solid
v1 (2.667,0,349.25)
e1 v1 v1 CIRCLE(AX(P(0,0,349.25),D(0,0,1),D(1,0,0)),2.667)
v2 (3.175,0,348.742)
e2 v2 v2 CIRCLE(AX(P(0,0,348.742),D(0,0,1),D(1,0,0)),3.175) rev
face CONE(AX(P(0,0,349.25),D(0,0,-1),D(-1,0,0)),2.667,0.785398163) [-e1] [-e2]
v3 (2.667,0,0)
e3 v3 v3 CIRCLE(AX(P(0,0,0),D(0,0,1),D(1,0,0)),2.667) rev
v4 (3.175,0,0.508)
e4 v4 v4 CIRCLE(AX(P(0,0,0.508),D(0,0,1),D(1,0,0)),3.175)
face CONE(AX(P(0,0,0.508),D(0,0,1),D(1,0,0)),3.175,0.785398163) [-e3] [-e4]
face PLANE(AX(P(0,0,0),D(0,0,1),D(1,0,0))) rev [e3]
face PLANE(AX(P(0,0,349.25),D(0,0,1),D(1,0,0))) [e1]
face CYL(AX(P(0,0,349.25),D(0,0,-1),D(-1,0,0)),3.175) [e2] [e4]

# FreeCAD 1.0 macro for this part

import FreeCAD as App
import Part
import Sketcher

V = App.Vector
Q = App.Units.Quantity


def edges_at(feature, points):
    """Names of the edges that pass closest to the given points."""
    edges = feature.Shape.Edges
    near = lambda p: min(range(len(edges)), key=lambda i: edges[i].distToShape(Part.Vertex(*p))[0])
    return sorted({f"Edge{near(p) + 1}" for p in points})

doc = App.newDocument("Part")
body = doc.addObject("PartDesign::Body", "Body")

sketch1 = doc.addObject("Sketcher::SketchObject", "Sketch")
body.addObject(sketch1)
sketch1.AttachmentSupport = (doc.XY_Plane, [""])
sketch1.MapMode = "FlatFace"
sketch1.addGeometry(Part.Circle(V(0, 0, 0), V(0, 0, 1), 3.2), False)
sketch1.addConstraint(Sketcher.Constraint("Coincident", 0, 3, -1, 1))
sketch1.addConstraint(Sketcher.Constraint("Diameter", 0, Q("0.25 in")))
pad1 = doc.addObject("PartDesign::Pad", "Pad")
body.addObject(pad1)
pad1.Profile = sketch1
pad1.Length = Q("13.75 in")
doc.recompute()

chamfer = doc.addObject("PartDesign::Chamfer", "Chamfer")
body.addObject(chamfer)
chamfer.Base = (pad1, edges_at(pad1, [(-3.175, 0, 0), (-3.175, 0, 349.25)]))
chamfer.Size = Q("0.02 in")

doc.recompute()
